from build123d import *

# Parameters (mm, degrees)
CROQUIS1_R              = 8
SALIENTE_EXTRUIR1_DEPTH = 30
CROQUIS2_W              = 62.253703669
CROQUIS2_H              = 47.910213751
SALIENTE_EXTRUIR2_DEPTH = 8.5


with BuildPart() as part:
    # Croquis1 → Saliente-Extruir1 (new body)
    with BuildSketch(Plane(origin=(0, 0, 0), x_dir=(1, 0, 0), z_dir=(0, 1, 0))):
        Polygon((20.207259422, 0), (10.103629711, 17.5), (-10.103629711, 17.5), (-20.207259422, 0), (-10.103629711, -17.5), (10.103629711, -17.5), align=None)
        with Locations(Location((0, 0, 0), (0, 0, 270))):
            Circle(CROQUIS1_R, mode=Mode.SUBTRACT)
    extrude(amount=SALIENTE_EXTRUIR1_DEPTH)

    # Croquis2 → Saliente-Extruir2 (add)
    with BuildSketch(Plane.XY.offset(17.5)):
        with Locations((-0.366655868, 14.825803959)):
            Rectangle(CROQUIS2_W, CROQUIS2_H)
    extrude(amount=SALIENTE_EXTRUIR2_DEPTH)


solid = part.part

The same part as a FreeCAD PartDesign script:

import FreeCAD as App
import Part
import Sketcher
from FreeCAD import Vector
Q = App.Units.Quantity


def add_polygon(sketch, points):
    """Adds a closed chain of lines whose ends are joined by coincident constraints."""
    first, n = sketch.GeometryCount, len(points)
    for a, b in zip(points, points[1:] + points[:1]):
        sketch.addGeometry(Part.LineSegment(App.Vector(*a, 0), App.Vector(*b, 0)), False)
    for i in range(n):
        sketch.addConstraint(Sketcher.Constraint("Coincident", first + i, 2, first + (i + 1) % n, 1))

doc = App.newDocument("Part")
body = doc.addObject("PartDesign::Body", "Body")

# Sketch on XZ plane
sketch1 = body.newObject("Sketcher::SketchObject", "Sketch")
sketch1.AttachmentSupport = (doc.getObject("XZ_Plane"), [""])
sketch1.MapMode = "FlatFace"
add_polygon(sketch1, [(20.207259, 0), (10.10363, -17.5), (-10.10363, -17.5), (-20.207259, 0), (-10.10363, 17.5), (10.10363, 17.5)])  # lines 0-5
sketch1.addGeometry(Part.Circle(Vector(0, 0, 0), Vector(0, 0, 1), 8), False)  # 6
sketch1.addConstraint(Sketcher.Constraint("Horizontal", 1))
sketch1.addConstraint(Sketcher.Constraint("Horizontal", 4))
sketch1.addConstraint(Sketcher.Constraint("Coincident", 6, 3, -1, 1))
sketch1.addConstraint(Sketcher.Constraint("Symmetric", 0, 2, 3, 2, -1, 1))
sketch1.addConstraint(Sketcher.Constraint("Symmetric", 2, 2, 5, 2, -1, 1))
sketch1.addConstraint(Sketcher.Constraint("PointOnObject", 2, 2, -1))
sketch1.addConstraint(Sketcher.Constraint("Parallel", 2, 5))
sketch1.addConstraint(Sketcher.Constraint("Vertical", 1, 2, 3, 2))
sketch1.addConstraint(Sketcher.Constraint("Diameter", 6, 16.0))
sketch1.addConstraint(Sketcher.Constraint("Angle", 0, Q("-120 deg")))
sketch1.addConstraint(Sketcher.Constraint("DistanceY", 1, 2, 3, 2, 35.0))
sketch1.addConstraint(Sketcher.Constraint("DistanceX", 1, 2, 1, 1, 20.207259))
pad1 = body.newObject("PartDesign::Pad", "Pad")
pad1.Profile = sketch1
pad1.Length = 30
pad1.Reversed = True

# Sketch on XY plane
sketch2 = body.newObject("Sketcher::SketchObject", "Sketch001")
sketch2.AttachmentSupport = (doc.getObject("XY_Plane"), [""])
sketch2.MapMode = "FlatFace"
sketch2.AttachmentOffset = App.Placement(Vector(0, 0, 17.5), App.Rotation())
add_polygon(sketch2, [(-31.493508, 38.780911), (-31.493508, -9.129303), (30.760196, -9.129303), (30.760196, 38.780911)])  # lines 0-3
sketch2.addConstraint(Sketcher.Constraint("Vertical", 0))
sketch2.addConstraint(Sketcher.Constraint("Horizontal", 1))
sketch2.addConstraint(Sketcher.Constraint("Vertical", 2))
sketch2.addConstraint(Sketcher.Constraint("Horizontal", 3))
sketch2.addConstraint(Sketcher.Constraint("DistanceX", 1, 1, 1, 2, 62.253704))
sketch2.addConstraint(Sketcher.Constraint("DistanceY", 0, 2, 0, 1, 47.910214))
sketch2.addConstraint(Sketcher.Constraint("DistanceY", -1, 1, 2, 2, 38.780911))
sketch2.addConstraint(Sketcher.Constraint("DistanceX", 0, 2, -1, 1, 31.493508))
pad2 = body.newObject("PartDesign::Pad", "Pad001")
pad2.Profile = sketch2
pad2.Length = 8.5

doc.recompute()
